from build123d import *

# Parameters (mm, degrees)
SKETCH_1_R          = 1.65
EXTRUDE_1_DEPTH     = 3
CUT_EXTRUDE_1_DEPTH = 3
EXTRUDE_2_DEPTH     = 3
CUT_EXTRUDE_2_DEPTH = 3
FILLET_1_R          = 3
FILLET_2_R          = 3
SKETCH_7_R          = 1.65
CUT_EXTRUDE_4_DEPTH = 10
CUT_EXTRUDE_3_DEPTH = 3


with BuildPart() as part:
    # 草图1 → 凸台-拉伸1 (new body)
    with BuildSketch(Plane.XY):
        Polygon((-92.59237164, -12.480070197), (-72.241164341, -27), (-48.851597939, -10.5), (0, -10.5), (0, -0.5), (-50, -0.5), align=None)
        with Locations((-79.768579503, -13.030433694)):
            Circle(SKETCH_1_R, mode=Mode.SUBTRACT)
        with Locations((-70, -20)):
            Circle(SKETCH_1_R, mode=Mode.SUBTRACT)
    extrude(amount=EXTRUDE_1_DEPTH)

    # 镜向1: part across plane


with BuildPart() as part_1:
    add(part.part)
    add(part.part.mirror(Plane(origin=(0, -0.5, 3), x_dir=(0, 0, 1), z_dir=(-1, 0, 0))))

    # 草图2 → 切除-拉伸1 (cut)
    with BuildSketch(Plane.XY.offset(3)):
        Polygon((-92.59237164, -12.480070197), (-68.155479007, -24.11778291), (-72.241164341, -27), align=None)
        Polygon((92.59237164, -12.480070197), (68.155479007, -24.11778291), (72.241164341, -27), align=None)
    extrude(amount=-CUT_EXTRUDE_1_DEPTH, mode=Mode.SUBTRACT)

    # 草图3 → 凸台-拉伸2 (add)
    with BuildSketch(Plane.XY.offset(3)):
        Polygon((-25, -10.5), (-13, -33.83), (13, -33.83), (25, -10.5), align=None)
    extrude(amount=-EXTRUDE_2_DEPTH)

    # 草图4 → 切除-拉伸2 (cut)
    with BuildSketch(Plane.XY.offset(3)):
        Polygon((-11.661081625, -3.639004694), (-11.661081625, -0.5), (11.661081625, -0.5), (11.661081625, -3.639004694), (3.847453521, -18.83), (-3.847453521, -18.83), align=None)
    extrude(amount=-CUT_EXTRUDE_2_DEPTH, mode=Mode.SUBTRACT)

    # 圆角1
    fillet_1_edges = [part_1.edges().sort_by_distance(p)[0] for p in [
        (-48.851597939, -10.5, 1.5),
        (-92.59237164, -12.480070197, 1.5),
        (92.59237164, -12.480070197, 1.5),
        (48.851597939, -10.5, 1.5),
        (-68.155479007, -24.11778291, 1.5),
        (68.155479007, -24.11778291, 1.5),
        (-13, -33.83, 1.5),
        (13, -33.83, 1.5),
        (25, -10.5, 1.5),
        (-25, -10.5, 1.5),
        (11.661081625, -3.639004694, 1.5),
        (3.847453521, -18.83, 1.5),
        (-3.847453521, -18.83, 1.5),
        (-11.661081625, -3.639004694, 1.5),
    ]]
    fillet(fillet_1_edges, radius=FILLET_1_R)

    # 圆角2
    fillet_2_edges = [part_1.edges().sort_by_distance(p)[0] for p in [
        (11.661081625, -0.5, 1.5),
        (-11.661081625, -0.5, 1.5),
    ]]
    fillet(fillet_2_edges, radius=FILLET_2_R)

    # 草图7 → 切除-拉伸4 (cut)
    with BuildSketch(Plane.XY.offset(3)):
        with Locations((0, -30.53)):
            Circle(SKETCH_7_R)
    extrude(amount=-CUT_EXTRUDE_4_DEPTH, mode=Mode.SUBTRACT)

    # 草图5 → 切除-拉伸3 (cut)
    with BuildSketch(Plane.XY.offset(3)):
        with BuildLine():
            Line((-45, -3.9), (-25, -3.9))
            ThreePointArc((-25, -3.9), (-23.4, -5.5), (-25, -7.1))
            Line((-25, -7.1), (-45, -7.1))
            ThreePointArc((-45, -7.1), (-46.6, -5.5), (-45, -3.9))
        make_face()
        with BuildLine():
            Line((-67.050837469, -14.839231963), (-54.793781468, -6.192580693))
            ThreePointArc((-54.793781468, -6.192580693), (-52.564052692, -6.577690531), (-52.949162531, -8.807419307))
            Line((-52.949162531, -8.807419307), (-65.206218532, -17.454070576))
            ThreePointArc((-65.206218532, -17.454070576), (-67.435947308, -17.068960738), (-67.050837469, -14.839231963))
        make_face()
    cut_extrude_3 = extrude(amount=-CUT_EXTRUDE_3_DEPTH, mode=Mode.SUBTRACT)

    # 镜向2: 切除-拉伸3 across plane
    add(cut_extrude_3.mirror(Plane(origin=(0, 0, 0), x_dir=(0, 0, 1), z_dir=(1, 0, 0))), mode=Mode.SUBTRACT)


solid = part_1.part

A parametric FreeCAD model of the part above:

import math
import FreeCAD as App
import Part
import Sketcher


def edges_at(feature, points):
    """Names of the edges that pass closest to the given points."""
    edges = feature.Shape.Edges
    near = lambda p: min(range(len(edges)), key=lambda i: edges[i].distToShape(Part.Vertex(*p))[0])
    return sorted({f"Edge{near(p) + 1}" for p in points})


def add_polygon(sketch, points):
    """Adds a closed chain of lines whose ends are joined by coincident constraints."""
    first, n = sketch.GeometryCount, len(points)
    for a, b in zip(points, points[1:] + points[:1]):
        sketch.addGeometry(Part.LineSegment(App.Vector(*a, 0), App.Vector(*b, 0)), False)
    for i in range(n):
        sketch.addConstraint(Sketcher.Constraint("Coincident", first + i, 2, first + (i + 1) % n, 1))

doc = App.newDocument("Part")
body = doc.addObject("PartDesign::Body", "Body")

sketch1 = body.newObject("Sketcher::SketchObject", "Sketch")
sketch1.AttachmentSupport = (doc.getObject("XY_Plane"), [""])
sketch1.MapMode = "FlatFace"
add_polygon(sketch1, [(-92.592372, -12.48007), (-72.241164, -27), (-48.851598, -10.5), (0, -10.5), (0, -0.5), (-50, -0.5)])
sketch1.addGeometry(Part.Circle(App.Vector(-70, -20, 0), App.Vector(0, 0, 1), 1.65), False)
sketch1.addGeometry(Part.Circle(App.Vector(-79.76858, -13.030434, 0), App.Vector(0, 0, 1), 1.65), False)
sketch1.addConstraint(Sketcher.Constraint("Horizontal", 2))
sketch1.addConstraint(Sketcher.Constraint("Vertical", 3))
sketch1.addConstraint(Sketcher.Constraint("Horizontal", 4))
sketch1.addConstraint(Sketcher.Constraint("Equal", 6, 7))
sketch1.addConstraint(Sketcher.Constraint("PointOnObject", 2, 2, -2))
sketch1.addConstraint(Sketcher.Constraint("Diameter", 6, 3.3))
sketch1.addConstraint(Sketcher.Constraint("DistanceX", 4, 2, 4, 1, 50.0))
sketch1.addConstraint(Sketcher.Constraint("DistanceY", 3, 1, 3, 2, 10.0))
sketch1.addConstraint(Sketcher.Constraint("Distance", 0, 25.0))
sketch1.addConstraint(Sketcher.Constraint("DistanceX", 6, 3, -1, 1, 70.0))
sketch1.addConstraint(Sketcher.Constraint("DistanceY", 6, 3, -1, 1, 20.0))
sketch1.addConstraint(Sketcher.Constraint("DistanceY", 0, 2, -1, 1, 27.0))
sketch1.addConstraint(Sketcher.Constraint("DistanceY", 1, 2, -1, 1, 10.5))
sketch1.addConstraint(Sketcher.Constraint("Distance", 1, 28.623798))
sketch1.addConstraint(Sketcher.Constraint("DistanceX", 2, 1, 2, 2, 48.851598))
sketch1.addConstraint(Sketcher.Constraint("DistanceX", 7, 3, -1, 1, 79.76858))
sketch1.addConstraint(Sketcher.Constraint("DistanceX", 5, 2, -1, 1, 92.592372))
sketch1.addConstraint(Sketcher.Constraint("DistanceY", 7, 3, -1, 1, 13.030434))
pad1 = body.newObject("PartDesign::Pad", "Pad")
pad1.Profile = sketch1
pad1.Length = 3
body2 = doc.addObject("PartDesign::Body", "Body001")
doc.recompute()

body2.BaseFeature = body
doc.recompute()

mirroring = doc.addObject("Part::Mirroring", "Mirroring")
mirroring.Source = body
mirroring.Base = App.Vector(0, -0.5, 3)
mirroring.Normal = App.Vector(-1, 0, 0)
body3 = doc.addObject("PartDesign::Body", "Body002")
body3.BaseFeature = mirroring
boolean = body2.newObject("PartDesign::Boolean", "Boolean")
boolean.Type = "Fuse"
boolean.addObjects([body3])
doc.recompute()

sketch2 = body2.newObject("Sketcher::SketchObject", "Sketch001")
sketch2.AttachmentSupport = (doc.getObject("XY_Plane001"), [""])
sketch2.MapMode = "FlatFace"
sketch2.AttachmentOffset = App.Placement(App.Vector(0, 0, 3), App.Rotation())
add_polygon(sketch2, [(-68.155479, -24.117783), (-92.592372, -12.48007), (-72.241164, -27)])
add_polygon(sketch2, [(92.592372, -12.48007), (68.155479, -24.117783), (72.241164, -27)])
sketch2.addConstraint(Sketcher.Constraint("Symmetric", 2, 2, 3, 2, -2))
sketch2.addConstraint(Sketcher.Constraint("Symmetric", 1, 2, 4, 2, -2))
sketch2.addConstraint(Sketcher.Constraint("Symmetric", 0, 2, 5, 2, -2))
sketch2.addConstraint(Sketcher.Constraint("Distance", 1, 25.0))
sketch2.addConstraint(Sketcher.Constraint("Distance", 2, 5.0))
sketch2.addConstraint(Sketcher.Constraint("DistanceY", 1, 2, -1, 1, 27.0))
sketch2.addConstraint(Sketcher.Constraint("Distance", 0, 27.066549))
sketch2.addConstraint(Sketcher.Constraint("DistanceX", 0, 2, -1, 1, 92.592372))
sketch2.addConstraint(Sketcher.Constraint("DistanceY", 0, 2, -1, 1, 12.48007))
pocket1 = body2.newObject("PartDesign::Pocket", "Pocket")
pocket1.Profile = sketch2
pocket1.Length = 3

sketch3 = body2.newObject("Sketcher::SketchObject", "Sketch002")
sketch3.AttachmentSupport = (doc.getObject("XY_Plane001"), [""])
sketch3.MapMode = "FlatFace"
sketch3.AttachmentOffset = App.Placement(App.Vector(0, 0, 3), App.Rotation())
add_polygon(sketch3, [(-25, -10.5), (-13, -33.83), (13, -33.83), (25, -10.5)])
sketch3.addConstraint(Sketcher.Constraint("Horizontal", 1))
sketch3.addConstraint(Sketcher.Constraint("Horizontal", 3))
sketch3.addConstraint(Sketcher.Constraint("Equal", 0, 2))
sketch3.addConstraint(Sketcher.Constraint("DistanceX", 1, 1, 1, 2, 26.0))
sketch3.addConstraint(Sketcher.Constraint("DistanceX", 3, 2, 3, 1, 50.0))
sketch3.addConstraint(Sketcher.Constraint("DistanceX", 0, 2, -1, 1, 13.0))
sketch3.addConstraint(Sketcher.Constraint("DistanceY", 2, 2, -1, 1, 10.5))
sketch3.addConstraint(Sketcher.Constraint("DistanceY", 0, 2, -1, 1, 33.83))
pad2 = body2.newObject("PartDesign::Pad", "Pad001")
pad2.Profile = sketch3
pad2.Length = 3
pad2.Reversed = True

sketch4 = body2.newObject("Sketcher::SketchObject", "Sketch003")
sketch4.AttachmentSupport = (doc.getObject("XY_Plane001"), [""])
sketch4.MapMode = "FlatFace"
sketch4.AttachmentOffset = App.Placement(App.Vector(0, 0, 3), App.Rotation())
add_polygon(sketch4, [(-11.661082, -0.5), (-11.661082, -3.639005), (-3.847454, -18.83), (3.847454, -18.83), (11.661082, -3.639005), (11.661082, -0.5)])
sketch4.addConstraint(Sketcher.Constraint("Vertical", 0))
sketch4.addConstraint(Sketcher.Constraint("Horizontal", 2))
sketch4.addConstraint(Sketcher.Constraint("Vertical", 4))
sketch4.addConstraint(Sketcher.Constraint("Horizontal", 5))
sketch4.addConstraint(Sketcher.Constraint("Symmetric", 0, 2, 3, 2, -2))
sketch4.addConstraint(Sketcher.Constraint("Equal", 1, 3))
sketch4.addConstraint(Sketcher.Constraint("DistanceY", 4, 2, -1, 1, 0.5))
sketch4.addConstraint(Sketcher.Constraint("DistanceY", 1, 2, -1, 1, 18.83))
sketch4.addConstraint(Sketcher.Constraint("DistanceX", 2, 1, 2, 2, 7.694907))
sketch4.addConstraint(Sketcher.Constraint("DistanceX", 5, 2, 5, 1, 23.322163))
sketch4.addConstraint(Sketcher.Constraint("DistanceY", 0, 2, 0, 1, 3.139005))
pocket2 = body2.newObject("PartDesign::Pocket", "Pocket001")
pocket2.Profile = sketch4
pocket2.Length = 3
doc.recompute()

fillet = body2.newObject("PartDesign::Fillet", "Fillet")
fillet.Base = (pocket2, edges_at(pocket2, [
    (-48.852, -10.5, 1.5),
    (-92.592, -12.48, 1.5),
    (92.592, -12.48, 1.5),
    (48.852, -10.5, 1.5),
    (-68.155, -24.118, 1.5),
    (68.155, -24.118, 1.5),
    (-13, -33.83, 1.5),
    (13, -33.83, 1.5),
    (25, -10.5, 1.5),
    (-25, -10.5, 1.5),
    (11.661, -3.639, 1.5),
    (3.847, -18.83, 1.5),
    (-3.847, -18.83, 1.5),
    (-11.661, -3.639, 1.5),
]))
fillet.Radius = 3
doc.recompute()

fillet2 = body2.newObject("PartDesign::Fillet", "Fillet001")
fillet2.Base = (fillet, edges_at(fillet, [(11.661, -0.5, 1.5), (-11.661, -0.5, 1.5)]))
fillet2.Radius = 3

sketch5 = body2.newObject("Sketcher::SketchObject", "Sketch004")
sketch5.AttachmentSupport = (doc.getObject("XY_Plane001"), [""])
sketch5.MapMode = "FlatFace"
sketch5.AttachmentOffset = App.Placement(App.Vector(0, 0, 3), App.Rotation())
sketch5.addGeometry(Part.Circle(App.Vector(0, -30.53, 0), App.Vector(0, 0, 1), 1.65), False)
sketch5.addConstraint(Sketcher.Constraint("PointOnObject", 0, 3, -2))
sketch5.addConstraint(Sketcher.Constraint("Diameter", 0, 3.3))
sketch5.addConstraint(Sketcher.Constraint("DistanceY", 0, 3, -1, 1, 30.53))
pocket3 = body2.newObject("PartDesign::Pocket", "Pocket002")
pocket3.Profile = sketch5
pocket3.Length = 10

sketch6 = body2.newObject("Sketcher::SketchObject", "Sketch005")
sketch6.AttachmentSupport = (doc.getObject("XY_Plane001"), [""])
sketch6.MapMode = "FlatFace"
sketch6.AttachmentOffset = App.Placement(App.Vector(0, 0, 3), App.Rotation())
sketch6.addGeometry(Part.LineSegment(App.Vector(-25, -3.9, 0), App.Vector(-45, -3.9, 0)), False)
sketch6.addGeometry(Part.ArcOfCircle(Part.Circle(App.Vector(-45, -5.5, 0), App.Vector(0, 0, 1), 1.6), math.radians(90), math.radians(270)), False)
sketch6.addGeometry(Part.LineSegment(App.Vector(-45, -7.1, 0), App.Vector(-25, -7.1, 0)), False)
sketch6.addGeometry(Part.ArcOfCircle(Part.Circle(App.Vector(-25, -5.5, 0), App.Vector(0, 0, 1), 1.6), math.radians(-90), math.radians(90)), False)
sketch6.addGeometry(Part.LineSegment(App.Vector(-54.793781, -6.192581, 0), App.Vector(-67.050837, -14.839232, 0)), False)
sketch6.addGeometry(Part.ArcOfCircle(Part.Circle(App.Vector(-66.128528, -16.146651, 0), App.Vector(0, 0, 1), 1.6), math.radians(125.200778), math.radians(305.200778)), False)
sketch6.addGeometry(Part.LineSegment(App.Vector(-65.206219, -17.454071, 0), App.Vector(-52.949163, -8.807419, 0)), False)
sketch6.addGeometry(Part.ArcOfCircle(Part.Circle(App.Vector(-53.871472, -7.5, 0), App.Vector(0, 0, 1), 1.6), math.radians(-54.799222), math.radians(125.200778)), False)
sketch6.addConstraint(Sketcher.Constraint("Tangent", 0, 2, 1, 1))
sketch6.addConstraint(Sketcher.Constraint("Tangent", 1, 2, 2, 1))
sketch6.addConstraint(Sketcher.Constraint("Tangent", 2, 2, 3, 1))
sketch6.addConstraint(Sketcher.Constraint("Tangent", 3, 2, 0, 1))
sketch6.addConstraint(Sketcher.Constraint("Tangent", 4, 2, 5, 1))
sketch6.addConstraint(Sketcher.Constraint("Tangent", 5, 2, 6, 1))
sketch6.addConstraint(Sketcher.Constraint("Tangent", 6, 2, 7, 1))
sketch6.addConstraint(Sketcher.Constraint("Tangent", 7, 2, 4, 1))
sketch6.addConstraint(Sketcher.Constraint("Horizontal", 0))
sketch6.addConstraint(Sketcher.Constraint("Horizontal", 2))
sketch6.addConstraint(Sketcher.Constraint("Equal", 3, 5))
sketch6.addConstraint(Sketcher.Constraint("Equal", 5, 7))
sketch6.addConstraint(Sketcher.Constraint("Radius", 1, 1.6))
sketch6.addConstraint(Sketcher.Constraint("DistanceX", 0, 2, 0, 1, 20.0))
sketch6.addConstraint(Sketcher.Constraint("Distance", 4, 15.0))
sketch6.addConstraint(Sketcher.Constraint("DistanceX", 1, 3, -1, 1, 45.0))
sketch6.addConstraint(Sketcher.Constraint("DistanceY", 7, 3, 1, 3, 2.0))
sketch6.addConstraint(Sketcher.Constraint("DistanceY", 1, 3, -1, 1, 5.5))
sketch6.addConstraint(Sketcher.Constraint("DistanceX", 5, 3, -1, 1, 66.128528))
sketch6.addConstraint(Sketcher.Constraint("DistanceY", 5, 3, -1, 1, 16.146651))
pocket4 = body2.newObject("PartDesign::Pocket", "Pocket003")
pocket4.Profile = sketch6
pocket4.Length = 3
doc.recompute()

mirrored = body2.newObject("PartDesign::Mirrored", "Mirrored")
mirrored.Originals = [pocket4]
mirrored.MirrorPlane = (doc.getObject("YZ_Plane001"), [""])
body2.Tip = mirrored
mirroring.Visibility = False

doc.recompute()
